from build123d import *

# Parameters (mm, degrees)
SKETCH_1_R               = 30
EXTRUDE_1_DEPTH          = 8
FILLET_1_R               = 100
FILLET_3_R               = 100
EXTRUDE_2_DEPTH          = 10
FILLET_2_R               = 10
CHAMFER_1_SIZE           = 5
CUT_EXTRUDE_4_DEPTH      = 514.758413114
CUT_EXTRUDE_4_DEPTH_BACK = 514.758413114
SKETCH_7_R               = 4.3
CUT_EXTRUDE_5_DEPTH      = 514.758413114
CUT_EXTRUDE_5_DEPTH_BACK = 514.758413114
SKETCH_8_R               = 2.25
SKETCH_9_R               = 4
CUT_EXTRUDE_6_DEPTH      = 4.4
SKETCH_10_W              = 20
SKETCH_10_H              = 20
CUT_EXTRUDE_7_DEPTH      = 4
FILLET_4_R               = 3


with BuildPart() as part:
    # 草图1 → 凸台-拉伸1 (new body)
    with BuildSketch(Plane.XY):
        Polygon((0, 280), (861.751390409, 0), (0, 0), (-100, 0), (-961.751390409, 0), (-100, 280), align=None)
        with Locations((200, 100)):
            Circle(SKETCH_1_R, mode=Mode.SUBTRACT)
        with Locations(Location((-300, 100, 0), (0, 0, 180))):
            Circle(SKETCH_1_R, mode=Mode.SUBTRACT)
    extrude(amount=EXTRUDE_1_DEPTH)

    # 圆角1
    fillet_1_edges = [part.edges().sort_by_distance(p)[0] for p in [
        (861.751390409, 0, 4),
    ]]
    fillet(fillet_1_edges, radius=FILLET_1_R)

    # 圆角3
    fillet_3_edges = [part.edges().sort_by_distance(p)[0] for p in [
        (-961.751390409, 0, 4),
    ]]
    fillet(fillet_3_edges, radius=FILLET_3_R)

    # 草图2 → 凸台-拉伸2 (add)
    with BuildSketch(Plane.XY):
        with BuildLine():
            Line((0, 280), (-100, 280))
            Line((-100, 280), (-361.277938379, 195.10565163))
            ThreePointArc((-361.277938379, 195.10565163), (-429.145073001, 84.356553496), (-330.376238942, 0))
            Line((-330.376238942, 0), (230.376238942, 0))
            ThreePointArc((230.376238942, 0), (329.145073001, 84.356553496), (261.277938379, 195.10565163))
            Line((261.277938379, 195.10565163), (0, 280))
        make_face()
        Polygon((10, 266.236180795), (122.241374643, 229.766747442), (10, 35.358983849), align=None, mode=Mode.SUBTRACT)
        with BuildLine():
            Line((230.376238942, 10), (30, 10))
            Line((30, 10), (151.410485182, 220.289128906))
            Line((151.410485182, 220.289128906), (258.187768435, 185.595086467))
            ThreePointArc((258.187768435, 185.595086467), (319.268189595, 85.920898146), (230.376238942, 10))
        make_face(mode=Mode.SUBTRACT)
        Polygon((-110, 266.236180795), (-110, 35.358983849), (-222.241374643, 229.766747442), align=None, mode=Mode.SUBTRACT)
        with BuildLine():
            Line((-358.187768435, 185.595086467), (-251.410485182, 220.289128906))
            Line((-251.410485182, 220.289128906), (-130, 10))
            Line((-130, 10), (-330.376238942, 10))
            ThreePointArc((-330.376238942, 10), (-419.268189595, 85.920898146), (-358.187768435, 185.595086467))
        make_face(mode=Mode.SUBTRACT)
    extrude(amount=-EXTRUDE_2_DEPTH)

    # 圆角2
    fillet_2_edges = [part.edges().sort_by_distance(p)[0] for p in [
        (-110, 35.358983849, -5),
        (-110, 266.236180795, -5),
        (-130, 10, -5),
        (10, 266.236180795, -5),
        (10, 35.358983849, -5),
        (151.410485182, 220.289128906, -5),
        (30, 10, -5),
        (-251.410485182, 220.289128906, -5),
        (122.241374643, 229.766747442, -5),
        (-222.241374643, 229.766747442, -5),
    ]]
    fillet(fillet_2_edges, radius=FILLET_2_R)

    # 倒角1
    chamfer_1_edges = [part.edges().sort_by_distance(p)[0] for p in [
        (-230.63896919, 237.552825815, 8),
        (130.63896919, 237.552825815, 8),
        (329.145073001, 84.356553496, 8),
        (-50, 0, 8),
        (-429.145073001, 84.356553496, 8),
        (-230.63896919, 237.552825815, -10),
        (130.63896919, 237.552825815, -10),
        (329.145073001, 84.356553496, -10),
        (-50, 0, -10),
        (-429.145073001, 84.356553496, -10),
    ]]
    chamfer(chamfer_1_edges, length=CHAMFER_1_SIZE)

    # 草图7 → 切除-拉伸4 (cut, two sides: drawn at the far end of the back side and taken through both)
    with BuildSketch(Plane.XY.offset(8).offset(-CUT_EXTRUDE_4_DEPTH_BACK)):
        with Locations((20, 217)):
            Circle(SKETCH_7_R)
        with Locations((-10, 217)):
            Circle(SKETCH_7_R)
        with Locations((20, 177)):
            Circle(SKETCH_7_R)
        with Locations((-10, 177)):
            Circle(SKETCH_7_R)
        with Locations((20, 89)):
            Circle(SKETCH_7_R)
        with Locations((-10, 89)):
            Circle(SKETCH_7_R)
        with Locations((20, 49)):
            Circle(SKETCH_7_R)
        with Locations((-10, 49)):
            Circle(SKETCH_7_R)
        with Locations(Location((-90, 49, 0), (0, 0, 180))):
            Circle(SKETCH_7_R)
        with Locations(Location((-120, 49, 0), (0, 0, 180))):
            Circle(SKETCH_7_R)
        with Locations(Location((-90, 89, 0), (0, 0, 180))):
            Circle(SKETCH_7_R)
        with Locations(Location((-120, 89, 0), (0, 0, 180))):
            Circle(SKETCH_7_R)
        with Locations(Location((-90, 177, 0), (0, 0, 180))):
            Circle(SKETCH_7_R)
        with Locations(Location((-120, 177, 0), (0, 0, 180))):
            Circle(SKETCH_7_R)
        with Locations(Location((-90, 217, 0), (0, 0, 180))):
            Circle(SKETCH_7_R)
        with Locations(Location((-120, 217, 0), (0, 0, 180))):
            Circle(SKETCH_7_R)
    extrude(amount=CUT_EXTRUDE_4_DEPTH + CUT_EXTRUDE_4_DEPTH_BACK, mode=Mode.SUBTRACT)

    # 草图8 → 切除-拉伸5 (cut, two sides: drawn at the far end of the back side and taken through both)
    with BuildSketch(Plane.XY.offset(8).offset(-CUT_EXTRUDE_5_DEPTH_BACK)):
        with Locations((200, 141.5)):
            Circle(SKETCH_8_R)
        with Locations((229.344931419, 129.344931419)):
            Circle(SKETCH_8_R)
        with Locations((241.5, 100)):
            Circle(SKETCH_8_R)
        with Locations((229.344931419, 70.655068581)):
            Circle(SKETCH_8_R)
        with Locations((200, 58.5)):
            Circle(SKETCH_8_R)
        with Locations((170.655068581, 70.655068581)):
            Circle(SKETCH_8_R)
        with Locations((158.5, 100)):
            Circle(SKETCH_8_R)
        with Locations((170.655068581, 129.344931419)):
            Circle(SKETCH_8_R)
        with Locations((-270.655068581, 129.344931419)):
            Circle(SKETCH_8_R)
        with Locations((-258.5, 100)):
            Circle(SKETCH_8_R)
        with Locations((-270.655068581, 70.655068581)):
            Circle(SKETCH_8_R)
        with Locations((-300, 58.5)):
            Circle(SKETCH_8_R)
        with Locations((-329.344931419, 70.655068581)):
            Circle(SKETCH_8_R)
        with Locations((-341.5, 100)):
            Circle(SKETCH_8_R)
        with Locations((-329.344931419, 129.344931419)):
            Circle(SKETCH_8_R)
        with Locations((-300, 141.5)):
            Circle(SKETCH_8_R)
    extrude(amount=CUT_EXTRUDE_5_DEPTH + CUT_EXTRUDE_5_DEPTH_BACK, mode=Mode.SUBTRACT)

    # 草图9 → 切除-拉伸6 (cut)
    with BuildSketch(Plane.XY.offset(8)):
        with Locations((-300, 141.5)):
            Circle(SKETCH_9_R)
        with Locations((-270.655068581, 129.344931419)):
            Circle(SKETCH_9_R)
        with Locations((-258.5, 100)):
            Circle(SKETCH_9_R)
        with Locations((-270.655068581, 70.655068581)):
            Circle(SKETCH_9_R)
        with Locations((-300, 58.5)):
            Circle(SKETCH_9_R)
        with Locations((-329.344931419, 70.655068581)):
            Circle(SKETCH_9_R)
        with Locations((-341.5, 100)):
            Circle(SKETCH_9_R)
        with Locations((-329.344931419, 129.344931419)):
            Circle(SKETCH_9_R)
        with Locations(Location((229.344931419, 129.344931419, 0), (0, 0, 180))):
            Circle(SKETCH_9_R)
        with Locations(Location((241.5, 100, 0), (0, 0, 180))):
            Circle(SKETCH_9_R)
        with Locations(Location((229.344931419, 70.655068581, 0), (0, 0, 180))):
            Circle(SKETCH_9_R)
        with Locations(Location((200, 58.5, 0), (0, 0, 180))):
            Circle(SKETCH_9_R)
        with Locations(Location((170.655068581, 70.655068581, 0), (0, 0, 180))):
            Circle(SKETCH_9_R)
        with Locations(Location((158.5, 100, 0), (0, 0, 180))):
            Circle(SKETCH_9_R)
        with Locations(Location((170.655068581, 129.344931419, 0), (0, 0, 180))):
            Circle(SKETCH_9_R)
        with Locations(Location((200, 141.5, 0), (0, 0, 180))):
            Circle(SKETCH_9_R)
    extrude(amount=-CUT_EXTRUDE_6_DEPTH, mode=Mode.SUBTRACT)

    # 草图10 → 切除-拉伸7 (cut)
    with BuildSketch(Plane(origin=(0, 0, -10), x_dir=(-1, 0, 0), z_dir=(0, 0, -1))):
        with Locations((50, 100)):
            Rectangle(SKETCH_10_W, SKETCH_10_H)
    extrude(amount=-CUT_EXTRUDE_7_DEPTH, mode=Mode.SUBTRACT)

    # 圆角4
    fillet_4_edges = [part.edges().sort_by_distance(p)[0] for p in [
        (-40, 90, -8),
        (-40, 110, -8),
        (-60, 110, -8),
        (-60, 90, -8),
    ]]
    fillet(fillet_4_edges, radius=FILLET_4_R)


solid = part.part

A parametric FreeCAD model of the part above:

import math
import FreeCAD as App
import Part
import Sketcher
from FreeCAD import Vector
Q = App.Units.Quantity


def edges_at(feature, points):
    """Names of the edges that pass closest to the given points."""
    edges = feature.Shape.Edges
    near = lambda p: min(range(len(edges)), key=lambda i: edges[i].distToShape(Part.Vertex(*p))[0])
    return sorted({f"Edge{near(p) + 1}" for p in points})


def add_polygon(sketch, points):
    """Adds a closed chain of lines whose ends are joined by coincident constraints."""
    first, n = sketch.GeometryCount, len(points)
    for a, b in zip(points, points[1:] + points[:1]):
        sketch.addGeometry(Part.LineSegment(App.Vector(*a, 0), App.Vector(*b, 0)), False)
    for i in range(n):
        sketch.addConstraint(Sketcher.Constraint("Coincident", first + i, 2, first + (i + 1) % n, 1))

doc = App.newDocument("Part")
body = doc.addObject("PartDesign::Body", "Body")

# Sketch on XY plane
sketch1 = doc.addObject("Sketcher::SketchObject", "Sketch")
body.addObject(sketch1)
sketch1.AttachmentSupport = (doc.XY_Plane, [""])
sketch1.MapMode = "FlatFace"
add_polygon(sketch1, [(862, 0), (0, 280), (-100, 280), (-962, 0)])  # lines 0-3
sketch1.addGeometry(Part.Circle(Vector(200, 100, 0), Vector(0, 0, 1), 30), False)  # 4
sketch1.addGeometry(Part.Circle(Vector(-300, 100, 0), Vector(0, 0, 1), 30), False)  # 5
sketch1.addConstraint(Sketcher.Constraint("Horizontal", 1))
sketch1.addConstraint(Sketcher.Constraint("Horizontal", 3))
sketch1.addConstraint(Sketcher.Constraint("Equal", 4, 5))
sketch1.addConstraint(Sketcher.Constraint("PointOnObject", 0, 2, -2))
sketch1.addConstraint(Sketcher.Constraint("PointOnObject", 2, 2, -1))
sketch1.addConstraint(Sketcher.Constraint("Horizontal", 4, 3, 5, 3))
sketch1.addConstraint(Sketcher.Constraint("Equal", 0, 2))
sketch1.addConstraint(Sketcher.Constraint("Diameter", 4, Q("60 mm")))
sketch1.addConstraint(Sketcher.Constraint("DistanceX", 1, 2, 1, 1, Q("100 mm")))
sketch1.addConstraint(Sketcher.Constraint("Angle", 0, Q("162 deg")))
sketch1.addConstraint(Sketcher.Constraint("DistanceX", -1, 1, 4, 3, Q("200 mm")))
sketch1.addConstraint(Sketcher.Constraint("DistanceY", -1, 1, 4, 3, Q("100 mm")))
sketch1.addConstraint(Sketcher.Constraint("DistanceX", 5, 3, -1, 1, Q("300 mm")))
sketch1.addConstraint(Sketcher.Constraint("DistanceY", -1, 1, 0, 2, Q("280 mm")))
pad1 = doc.addObject("PartDesign::Pad", "Pad")
body.addObject(pad1)
pad1.Profile = sketch1
pad1.Length = 8
doc.recompute()

fillet = doc.addObject("PartDesign::Fillet", "Fillet")
body.addObject(fillet)
fillet.Base = (pad1, edges_at(pad1, [(861.751, 0, 4)]))
fillet.Radius = 100
doc.recompute()

fillet2 = doc.addObject("PartDesign::Fillet", "Fillet001")
body.addObject(fillet2)
fillet2.Base = (fillet, edges_at(fillet, [(-961.751, 0, 4)]))
fillet2.Radius = 100

# Sketch on XY plane
sketch2 = doc.addObject("Sketcher::SketchObject", "Sketch001")
body.addObject(sketch2)
sketch2.AttachmentSupport = (doc.XY_Plane, [""])
sketch2.MapMode = "FlatFace"
sketch2.addGeometry(Part.LineSegment(Vector(0, 280, 0), Vector(-100, 280, 0)), False)  # 0
sketch2.addGeometry(Part.LineSegment(Vector(-100, 280, 0), Vector(-361, 195, 0)), False)  # 1
sketch2.addGeometry(Part.ArcOfCircle(Part.Circle(Vector(-330, 100, 0), Vector(0, 0, 1), 100), math.radians(108), math.radians(270)), False)  # 2
sketch2.addGeometry(Part.LineSegment(Vector(-330, 0, 0), Vector(230, 0, 0)), False)  # 3
sketch2.addGeometry(Part.ArcOfCircle(Part.Circle(Vector(230, 100, 0), Vector(0, 0, 1), 100), math.radians(-90), math.radians(72)), False)  # 4
sketch2.addGeometry(Part.LineSegment(Vector(261, 195, 0), Vector(0, 280, 0)), False)  # 5
sketch2.addGeometry(Part.ArcOfCircle(Part.Circle(Vector(-330, 100, 0), Vector(0, 0, 1), 90), math.radians(108), math.radians(270)), False)  # 6
sketch2.addGeometry(Part.LineSegment(Vector(-358, 186, 0), Vector(-251, 220, 0)), False)  # 7
sketch2.addGeometry(Part.LineSegment(Vector(-251, 220, 0), Vector(-130, 10, 0)), False)  # 8
sketch2.addGeometry(Part.LineSegment(Vector(-130, 10, 0), Vector(-330, 10, 0)), False)  # 9
sketch2.addGeometry(Part.ArcOfCircle(Part.Circle(Vector(230, 100, 0), Vector(0, 0, 1), 90), math.radians(-90), math.radians(72)), False)  # 10
sketch2.addGeometry(Part.LineSegment(Vector(230, 10, 0), Vector(30, 10, 0)), False)  # 11
sketch2.addGeometry(Part.LineSegment(Vector(30, 10, 0), Vector(151, 220, 0)), False)  # 12
sketch2.addGeometry(Part.LineSegment(Vector(151, 220, 0), Vector(258, 186, 0)), False)  # 13
add_polygon(sketch2, [(-222, 230), (-110, 266), (-110, 35)])  # lines 14-16
add_polygon(sketch2, [(10, 35), (10, 266), (122, 230)])  # lines 17-19
sketch2.addConstraint(Sketcher.Constraint("Coincident", 0, 2, 1, 1))
sketch2.addConstraint(Sketcher.Constraint("Tangent", 1, 2, 2, 1))
sketch2.addConstraint(Sketcher.Constraint("Tangent", 2, 2, 3, 1))
sketch2.addConstraint(Sketcher.Constraint("Tangent", 3, 2, 4, 1))
sketch2.addConstraint(Sketcher.Constraint("Tangent", 4, 2, 5, 1))
sketch2.addConstraint(Sketcher.Constraint("Coincident", 5, 2, 0, 1))
sketch2.addConstraint(Sketcher.Constraint("Tangent", 6, 1, 7, 1))
sketch2.addConstraint(Sketcher.Constraint("Coincident", 7, 2, 8, 1))
sketch2.addConstraint(Sketcher.Constraint("Coincident", 8, 2, 9, 1))
sketch2.addConstraint(Sketcher.Constraint("Tangent", 9, 2, 6, 2))
sketch2.addConstraint(Sketcher.Constraint("Tangent", 10, 1, 11, 1))
sketch2.addConstraint(Sketcher.Constraint("Coincident", 11, 2, 12, 1))
sketch2.addConstraint(Sketcher.Constraint("Coincident", 12, 2, 13, 1))
sketch2.addConstraint(Sketcher.Constraint("Tangent", 13, 2, 10, 2))
sketch2.addConstraint(Sketcher.Constraint("Horizontal", 0))
sketch2.addConstraint(Sketcher.Constraint("Horizontal", 3))
sketch2.addConstraint(Sketcher.Constraint("Horizontal", 9))
sketch2.addConstraint(Sketcher.Constraint("Horizontal", 11))
sketch2.addConstraint(Sketcher.Constraint("Vertical", 15))
sketch2.addConstraint(Sketcher.Constraint("Vertical", 17))
sketch2.addConstraint(Sketcher.Constraint("Coincident", 6, 3, 2, 3))
sketch2.addConstraint(Sketcher.Constraint("Coincident", 10, 3, 4, 3))
sketch2.addConstraint(Sketcher.Constraint("Equal", 2, 4))
sketch2.addConstraint(Sketcher.Constraint("Equal", 6, 10))
sketch2.addConstraint(Sketcher.Constraint("PointOnObject", 2, 2, -1))
sketch2.addConstraint(Sketcher.Constraint("PointOnObject", 5, 2, -2))
sketch2.addConstraint(Sketcher.Constraint("Parallel", 1, 7))
sketch2.addConstraint(Sketcher.Constraint("Parallel", 5, 13))
sketch2.addConstraint(Sketcher.Constraint("Parallel", 7, 14))
sketch2.addConstraint(Sketcher.Constraint("Parallel", 8, 16))
sketch2.addConstraint(Sketcher.Constraint("Parallel", 13, 18))
sketch2.addConstraint(Sketcher.Constraint("Parallel", 12, 19))
sketch2.addConstraint(Sketcher.Constraint("Horizontal", 7, 2, 12, 2))
sketch2.addConstraint(Sketcher.Constraint("Horizontal", 14, 2, 17, 2))
sketch2.addConstraint(Sketcher.Constraint("Horizontal", 16, 2, 18, 2))
sketch2.addConstraint(Sketcher.Constraint("Horizontal", 15, 2, 19, 2))
sketch2.addConstraint(Sketcher.Constraint("Equal", 9, 11))
sketch2.addConstraint(Sketcher.Constraint("Radius", 2, Q("100 mm")))
sketch2.addConstraint(Sketcher.Constraint("Radius", 6, Q("90 mm")))
sketch2.addConstraint(Sketcher.Constraint("DistanceX", 0, 2, 0, 1, Q("100 mm")))
sketch2.addConstraint(Sketcher.Constraint("Angle", 1, Q("-162 deg")))
sketch2.addConstraint(Sketcher.Constraint("Angle", 8, Q("-60 deg")))
sketch2.addConstraint(Sketcher.Constraint("DistanceY", -1, 1, 0, 2, Q("280 mm")))
sketch2.addConstraint(Sketcher.Constraint("DistanceX", 8, 2, -1, 1, Q("130 mm")))
sketch2.addConstraint(Sketcher.Constraint("DistanceX", 14, 2, -1, 1, Q("110 mm")))
sketch2.addConstraint(Sketcher.Constraint("DistanceX", -1, 1, 17, 2, Q("10 mm")))
sketch2.addConstraint(Sketcher.Constraint("Distance", 16, Q("224.482749 mm")))
sketch2.addConstraint(Sketcher.Constraint("DistanceY", -1, 1, 14, 2, Q("266.236181 mm")))
pad2 = doc.addObject("PartDesign::Pad", "Pad001")
body.addObject(pad2)
pad2.Profile = sketch2
pad2.Length = 10
pad2.Reversed = True
doc.recompute()

fillet3 = doc.addObject("PartDesign::Fillet", "Fillet002")
body.addObject(fillet3)
fillet3.Base = (pad2, edges_at(pad2, [
    (-110, 35.359, -5),
    (-110, 266.236, -5),
    (-130, 10, -5),
    (10, 266.236, -5),
    (10, 35.359, -5),
    (151.41, 220.289, -5),
    (30, 10, -5),
    (-251.41, 220.289, -5),
    (122.241, 229.767, -5),
    (-222.241, 229.767, -5),
]))
fillet3.Radius = 10
doc.recompute()

chamfer = doc.addObject("PartDesign::Chamfer", "Chamfer")
body.addObject(chamfer)
chamfer.Base = (fillet3, edges_at(fillet3, [
    (-230.639, 237.553, 8),
    (130.639, 237.553, 8),
    (329.145, 84.357, 8),
    (-50, 0, 8),
    (-429.145, 84.357, 8),
    (-230.639, 237.553, -10),
    (130.639, 237.553, -10),
    (329.145, 84.357, -10),
    (-50, 0, -10),
    (-429.145, 84.357, -10),
]))
chamfer.Size = 5

# Sketch on XY plane
sketch3 = doc.addObject("Sketcher::SketchObject", "Sketch002")
body.addObject(sketch3)
sketch3.AttachmentSupport = (doc.XY_Plane, [""])
sketch3.MapMode = "FlatFace"
sketch3.AttachmentOffset = App.Placement(Vector(0, 0, 8), App.Rotation())
sketch3.addGeometry(Part.Circle(Vector(20, 217, 0), Vector(0, 0, 1), 4.3), False)
sketch3.addGeometry(Part.Circle(Vector(-10, 217, 0), Vector(0, 0, 1), 4.3), False)
sketch3.addGeometry(Part.Circle(Vector(20, 177, 0), Vector(0, 0, 1), 4.3), False)
sketch3.addGeometry(Part.Circle(Vector(-10, 177, 0), Vector(0, 0, 1), 4.3), False)
sketch3.addGeometry(Part.Circle(Vector(20, 89, 0), Vector(0, 0, 1), 4.3), False)
sketch3.addGeometry(Part.Circle(Vector(-10, 89, 0), Vector(0, 0, 1), 4.3), False)
sketch3.addGeometry(Part.Circle(Vector(20, 49, 0), Vector(0, 0, 1), 4.3), False)
sketch3.addGeometry(Part.Circle(Vector(-10, 49, 0), Vector(0, 0, 1), 4.3), False)
sketch3.addGeometry(Part.Circle(Vector(-90, 49, 0), Vector(0, 0, 1), 4.3), False)
sketch3.addGeometry(Part.Circle(Vector(-120, 49, 0), Vector(0, 0, 1), 4.3), False)
sketch3.addGeometry(Part.Circle(Vector(-90, 89, 0), Vector(0, 0, 1), 4.3), False)
sketch3.addGeometry(Part.Circle(Vector(-120, 89, 0), Vector(0, 0, 1), 4.3), False)
sketch3.addGeometry(Part.Circle(Vector(-90, 177, 0), Vector(0, 0, 1), 4.3), False)
sketch3.addGeometry(Part.Circle(Vector(-120, 177, 0), Vector(0, 0, 1), 4.3), False)
sketch3.addGeometry(Part.Circle(Vector(-90, 217, 0), Vector(0, 0, 1), 4.3), False)
sketch3.addGeometry(Part.Circle(Vector(-120, 217, 0), Vector(0, 0, 1), 4.3), False)
sketch3.addConstraint(Sketcher.Constraint("Equal", 0, 1))
sketch3.addConstraint(Sketcher.Constraint("Equal", 1, 2))
sketch3.addConstraint(Sketcher.Constraint("Equal", 2, 3))
sketch3.addConstraint(Sketcher.Constraint("Equal", 3, 4))
sketch3.addConstraint(Sketcher.Constraint("Equal", 4, 5))
sketch3.addConstraint(Sketcher.Constraint("Equal", 5, 6))
sketch3.addConstraint(Sketcher.Constraint("Equal", 6, 7))
sketch3.addConstraint(Sketcher.Constraint("Equal", 7, 8))
sketch3.addConstraint(Sketcher.Constraint("Equal", 8, 9))
sketch3.addConstraint(Sketcher.Constraint("Equal", 9, 10))
sketch3.addConstraint(Sketcher.Constraint("Equal", 10, 11))
sketch3.addConstraint(Sketcher.Constraint("Equal", 11, 12))
sketch3.addConstraint(Sketcher.Constraint("Equal", 12, 13))
sketch3.addConstraint(Sketcher.Constraint("Equal", 13, 14))
sketch3.addConstraint(Sketcher.Constraint("Equal", 14, 15))
sketch3.addConstraint(Sketcher.Constraint("Horizontal", 0, 3, 1, 3))
sketch3.addConstraint(Sketcher.Constraint("Horizontal", 2, 3, 3, 3))
sketch3.addConstraint(Sketcher.Constraint("Horizontal", 4, 3, 5, 3))
sketch3.addConstraint(Sketcher.Constraint("Horizontal", 6, 3, 7, 3))
sketch3.addConstraint(Sketcher.Constraint("Horizontal", 7, 3, 8, 3))
sketch3.addConstraint(Sketcher.Constraint("Horizontal", 8, 3, 9, 3))
sketch3.addConstraint(Sketcher.Constraint("Horizontal", 5, 3, 10, 3))
sketch3.addConstraint(Sketcher.Constraint("Horizontal", 10, 3, 11, 3))
sketch3.addConstraint(Sketcher.Constraint("Horizontal", 3, 3, 12, 3))
sketch3.addConstraint(Sketcher.Constraint("Horizontal", 12, 3, 13, 3))
sketch3.addConstraint(Sketcher.Constraint("Horizontal", 1, 3, 14, 3))
sketch3.addConstraint(Sketcher.Constraint("Horizontal", 14, 3, 15, 3))
sketch3.addConstraint(Sketcher.Constraint("Vertical", 0, 3, 2, 3))
sketch3.addConstraint(Sketcher.Constraint("Vertical", 1, 3, 3, 3))
sketch3.addConstraint(Sketcher.Constraint("Vertical", 2, 3, 4, 3))
sketch3.addConstraint(Sketcher.Constraint("Vertical", 3, 3, 5, 3))
sketch3.addConstraint(Sketcher.Constraint("Vertical", 4, 3, 6, 3))
sketch3.addConstraint(Sketcher.Constraint("Vertical", 5, 3, 7, 3))
sketch3.addConstraint(Sketcher.Constraint("Vertical", 8, 3, 10, 3))
sketch3.addConstraint(Sketcher.Constraint("Vertical", 9, 3, 11, 3))
sketch3.addConstraint(Sketcher.Constraint("Vertical", 10, 3, 12, 3))
sketch3.addConstraint(Sketcher.Constraint("Vertical", 11, 3, 13, 3))
sketch3.addConstraint(Sketcher.Constraint("Vertical", 12, 3, 14, 3))
sketch3.addConstraint(Sketcher.Constraint("Vertical", 13, 3, 15, 3))
sketch3.addConstraint(Sketcher.Constraint("Diameter", 0, Q("8.6 mm")))
sketch3.addConstraint(Sketcher.Constraint("DistanceX", -1, 1, 0, 3, Q("20 mm")))
sketch3.addConstraint(Sketcher.Constraint("DistanceY", -1, 1, 0, 3, Q("217 mm")))
sketch3.addConstraint(Sketcher.Constraint("DistanceX", 1, 3, -1, 1, Q("10 mm")))
sketch3.addConstraint(Sketcher.Constraint("DistanceY", -1, 1, 2, 3, Q("177 mm")))
sketch3.addConstraint(Sketcher.Constraint("DistanceY", -1, 1, 4, 3, Q("89 mm")))
sketch3.addConstraint(Sketcher.Constraint("DistanceY", -1, 1, 6, 3, Q("49 mm")))
sketch3.addConstraint(Sketcher.Constraint("DistanceX", 8, 3, -1, 1, Q("90 mm")))
sketch3.addConstraint(Sketcher.Constraint("DistanceX", 9, 3, -1, 1, Q("120 mm")))
pocket1 = doc.addObject("PartDesign::Pocket", "Pocket")
body.addObject(pocket1)
pocket1.Profile = sketch3
pocket1.Type = "ThroughAll"
pocket1.Midplane = True

# Sketch on XY plane
sketch4 = doc.addObject("Sketcher::SketchObject", "Sketch003")
body.addObject(sketch4)
sketch4.AttachmentSupport = (doc.XY_Plane, [""])
sketch4.MapMode = "FlatFace"
sketch4.AttachmentOffset = App.Placement(Vector(0, 0, 8), App.Rotation())
sketch4.addGeometry(Part.Circle(Vector(200, 141.5, 0), Vector(0, 0, 1), 2.2), False)
sketch4.addGeometry(Part.Circle(Vector(229.3, 129.3, 0), Vector(0, 0, 1), 2.2), False)
sketch4.addGeometry(Part.Circle(Vector(241.5, 100, 0), Vector(0, 0, 1), 2.2), False)
sketch4.addGeometry(Part.Circle(Vector(229.3, 70.7, 0), Vector(0, 0, 1), 2.2), False)
sketch4.addGeometry(Part.Circle(Vector(200, 58.5, 0), Vector(0, 0, 1), 2.2), False)
sketch4.addGeometry(Part.Circle(Vector(170.7, 70.7, 0), Vector(0, 0, 1), 2.2), False)
sketch4.addGeometry(Part.Circle(Vector(158.5, 100, 0), Vector(0, 0, 1), 2.2), False)
sketch4.addGeometry(Part.Circle(Vector(170.7, 129.3, 0), Vector(0, 0, 1), 2.2), False)
sketch4.addGeometry(Part.Circle(Vector(-270.7, 129.3, 0), Vector(0, 0, 1), 2.2), False)
sketch4.addGeometry(Part.Circle(Vector(-258.5, 100, 0), Vector(0, 0, 1), 2.2), False)
sketch4.addGeometry(Part.Circle(Vector(-270.7, 70.7, 0), Vector(0, 0, 1), 2.2), False)
sketch4.addGeometry(Part.Circle(Vector(-300, 58.5, 0), Vector(0, 0, 1), 2.2), False)
sketch4.addGeometry(Part.Circle(Vector(-329.3, 70.7, 0), Vector(0, 0, 1), 2.2), False)
sketch4.addGeometry(Part.Circle(Vector(-341.5, 100, 0), Vector(0, 0, 1), 2.2), False)
sketch4.addGeometry(Part.Circle(Vector(-329.3, 129.3, 0), Vector(0, 0, 1), 2.2), False)
sketch4.addGeometry(Part.Circle(Vector(-300, 141.5, 0), Vector(0, 0, 1), 2.2), False)
sketch4.addConstraint(Sketcher.Constraint("Equal", 0, 1))
sketch4.addConstraint(Sketcher.Constraint("Equal", 1, 2))
sketch4.addConstraint(Sketcher.Constraint("Equal", 2, 3))
sketch4.addConstraint(Sketcher.Constraint("Equal", 3, 4))
sketch4.addConstraint(Sketcher.Constraint("Equal", 4, 5))
sketch4.addConstraint(Sketcher.Constraint("Equal", 5, 6))
sketch4.addConstraint(Sketcher.Constraint("Equal", 6, 7))
sketch4.addConstraint(Sketcher.Constraint("Equal", 7, 8))
sketch4.addConstraint(Sketcher.Constraint("Equal", 8, 9))
sketch4.addConstraint(Sketcher.Constraint("Equal", 9, 10))
sketch4.addConstraint(Sketcher.Constraint("Equal", 10, 11))
sketch4.addConstraint(Sketcher.Constraint("Equal", 11, 12))
sketch4.addConstraint(Sketcher.Constraint("Equal", 12, 13))
sketch4.addConstraint(Sketcher.Constraint("Equal", 13, 14))
sketch4.addConstraint(Sketcher.Constraint("Equal", 14, 15))
sketch4.addConstraint(Sketcher.Constraint("Horizontal", 3, 3, 5, 3))
sketch4.addConstraint(Sketcher.Constraint("Horizontal", 2, 3, 6, 3))
sketch4.addConstraint(Sketcher.Constraint("Horizontal", 1, 3, 7, 3))
sketch4.addConstraint(Sketcher.Constraint("Horizontal", 7, 3, 8, 3))
sketch4.addConstraint(Sketcher.Constraint("Horizontal", 6, 3, 9, 3))
sketch4.addConstraint(Sketcher.Constraint("Horizontal", 5, 3, 10, 3))
sketch4.addConstraint(Sketcher.Constraint("Horizontal", 4, 3, 11, 3))
sketch4.addConstraint(Sketcher.Constraint("Horizontal", 10, 3, 12, 3))
sketch4.addConstraint(Sketcher.Constraint("Horizontal", 9, 3, 13, 3))
sketch4.addConstraint(Sketcher.Constraint("Horizontal", 8, 3, 14, 3))
sketch4.addConstraint(Sketcher.Constraint("Horizontal", 0, 3, 15, 3))
sketch4.addConstraint(Sketcher.Constraint("Vertical", 1, 3, 3, 3))
sketch4.addConstraint(Sketcher.Constraint("Vertical", 0, 3, 4, 3))
sketch4.addConstraint(Sketcher.Constraint("Vertical", 5, 3, 7, 3))
sketch4.addConstraint(Sketcher.Constraint("Vertical", 8, 3, 10, 3))
sketch4.addConstraint(Sketcher.Constraint("Vertical", 12, 3, 14, 3))
sketch4.addConstraint(Sketcher.Constraint("Vertical", 11, 3, 15, 3))
sketch4.addConstraint(Sketcher.Constraint("Diameter", 0, Q("4.5 mm")))
sketch4.addConstraint(Sketcher.Constraint("DistanceX", -1, 1, 0, 3, Q("200 mm")))
sketch4.addConstraint(Sketcher.Constraint("DistanceY", -1, 1, 2, 3, Q("100 mm")))
sketch4.addConstraint(Sketcher.Constraint("DistanceX", 11, 3, -1, 1, Q("300 mm")))
sketch4.addConstraint(Sketcher.Constraint("DistanceY", 4, 3, 0, 3, Q("83 mm")))
sketch4.addConstraint(Sketcher.Constraint("DistanceX", 9, 3, 6, 3, Q("417 mm")))
sketch4.addConstraint(Sketcher.Constraint("DistanceX", 13, 3, 9, 3, Q("83 mm")))
sketch4.addConstraint(Sketcher.Constraint("DistanceY", -1, 1, 0, 3, Q("141.5 mm")))
sketch4.addConstraint(Sketcher.Constraint("DistanceX", -1, 1, 2, 3, Q("241.5 mm")))
sketch4.addConstraint(Sketcher.Constraint("DistanceX", -1, 1, 6, 3, Q("158.5 mm")))
sketch4.addConstraint(Sketcher.Constraint("DistanceX", -1, 1, 1, 3, Q("229.344931 mm")))
sketch4.addConstraint(Sketcher.Constraint("DistanceY", -1, 1, 1, 3, Q("129.344931 mm")))
sketch4.addConstraint(Sketcher.Constraint("DistanceY", -1, 1, 3, 3, Q("70.655069 mm")))
sketch4.addConstraint(Sketcher.Constraint("DistanceX", -1, 1, 5, 3, Q("170.655069 mm")))
sketch4.addConstraint(Sketcher.Constraint("DistanceX", 8, 3, -1, 1, Q("270.655069 mm")))
sketch4.addConstraint(Sketcher.Constraint("DistanceX", 12, 3, -1, 1, Q("329.344931 mm")))
pocket2 = doc.addObject("PartDesign::Pocket", "Pocket001")
body.addObject(pocket2)
pocket2.Profile = sketch4
pocket2.Type = "ThroughAll"
pocket2.Midplane = True

# Sketch on XY plane
sketch5 = doc.addObject("Sketcher::SketchObject", "Sketch004")
body.addObject(sketch5)
sketch5.AttachmentSupport = (doc.XY_Plane, [""])
sketch5.MapMode = "FlatFace"
sketch5.AttachmentOffset = App.Placement(Vector(0, 0, 8), App.Rotation())
sketch5.addGeometry(Part.Circle(Vector(-300, 141.5, 0), Vector(0, 0, 1), 4), False)
sketch5.addGeometry(Part.Circle(Vector(-270.7, 129.3, 0), Vector(0, 0, 1), 4), False)
sketch5.addGeometry(Part.Circle(Vector(-258.5, 100, 0), Vector(0, 0, 1), 4), False)
sketch5.addGeometry(Part.Circle(Vector(-270.7, 70.7, 0), Vector(0, 0, 1), 4), False)
sketch5.addGeometry(Part.Circle(Vector(-300, 58.5, 0), Vector(0, 0, 1), 4), False)
sketch5.addGeometry(Part.Circle(Vector(-329.3, 70.7, 0), Vector(0, 0, 1), 4), False)
sketch5.addGeometry(Part.Circle(Vector(-341.5, 100, 0), Vector(0, 0, 1), 4), False)
sketch5.addGeometry(Part.Circle(Vector(-329.3, 129.3, 0), Vector(0, 0, 1), 4), False)
sketch5.addGeometry(Part.Circle(Vector(229.3, 129.3, 0), Vector(0, 0, 1), 4), False)
sketch5.addGeometry(Part.Circle(Vector(241.5, 100, 0), Vector(0, 0, 1), 4), False)
sketch5.addGeometry(Part.Circle(Vector(229.3, 70.7, 0), Vector(0, 0, 1), 4), False)
sketch5.addGeometry(Part.Circle(Vector(200, 58.5, 0), Vector(0, 0, 1), 4), False)
sketch5.addGeometry(Part.Circle(Vector(170.7, 70.7, 0), Vector(0, 0, 1), 4), False)
sketch5.addGeometry(Part.Circle(Vector(158.5, 100, 0), Vector(0, 0, 1), 4), False)
sketch5.addGeometry(Part.Circle(Vector(170.7, 129.3, 0), Vector(0, 0, 1), 4), False)
sketch5.addGeometry(Part.Circle(Vector(200, 141.5, 0), Vector(0, 0, 1), 4), False)
sketch5.addConstraint(Sketcher.Constraint("Equal", 0, 1))
sketch5.addConstraint(Sketcher.Constraint("Equal", 1, 2))
sketch5.addConstraint(Sketcher.Constraint("Equal", 2, 3))
sketch5.addConstraint(Sketcher.Constraint("Equal", 3, 4))
sketch5.addConstraint(Sketcher.Constraint("Equal", 4, 5))
sketch5.addConstraint(Sketcher.Constraint("Equal", 5, 6))
sketch5.addConstraint(Sketcher.Constraint("Equal", 6, 7))
sketch5.addConstraint(Sketcher.Constraint("Equal", 7, 8))
sketch5.addConstraint(Sketcher.Constraint("Equal", 8, 9))
sketch5.addConstraint(Sketcher.Constraint("Equal", 9, 10))
sketch5.addConstraint(Sketcher.Constraint("Equal", 10, 11))
sketch5.addConstraint(Sketcher.Constraint("Equal", 11, 12))
sketch5.addConstraint(Sketcher.Constraint("Equal", 12, 13))
sketch5.addConstraint(Sketcher.Constraint("Equal", 13, 14))
sketch5.addConstraint(Sketcher.Constraint("Equal", 14, 15))
sketch5.addConstraint(Sketcher.Constraint("Horizontal", 3, 3, 5, 3))
sketch5.addConstraint(Sketcher.Constraint("Horizontal", 2, 3, 6, 3))
sketch5.addConstraint(Sketcher.Constraint("Horizontal", 1, 3, 7, 3))
sketch5.addConstraint(Sketcher.Constraint("Horizontal", 7, 3, 8, 3))
sketch5.addConstraint(Sketcher.Constraint("Horizontal", 6, 3, 9, 3))
sketch5.addConstraint(Sketcher.Constraint("Horizontal", 5, 3, 10, 3))
sketch5.addConstraint(Sketcher.Constraint("Horizontal", 4, 3, 11, 3))
sketch5.addConstraint(Sketcher.Constraint("Horizontal", 10, 3, 12, 3))
sketch5.addConstraint(Sketcher.Constraint("Horizontal", 9, 3, 13, 3))
sketch5.addConstraint(Sketcher.Constraint("Horizontal", 8, 3, 14, 3))
sketch5.addConstraint(Sketcher.Constraint("Horizontal", 0, 3, 15, 3))
sketch5.addConstraint(Sketcher.Constraint("Vertical", 1, 3, 3, 3))
sketch5.addConstraint(Sketcher.Constraint("Vertical", 0, 3, 4, 3))
sketch5.addConstraint(Sketcher.Constraint("Vertical", 5, 3, 7, 3))
sketch5.addConstraint(Sketcher.Constraint("Vertical", 8, 3, 10, 3))
sketch5.addConstraint(Sketcher.Constraint("Vertical", 12, 3, 14, 3))
sketch5.addConstraint(Sketcher.Constraint("Vertical", 11, 3, 15, 3))
sketch5.addConstraint(Sketcher.Constraint("Diameter", 0, Q("8 mm")))
sketch5.addConstraint(Sketcher.Constraint("DistanceX", 0, 3, -1, 1, Q("300 mm")))
sketch5.addConstraint(Sketcher.Constraint("DistanceY", -1, 1, 2, 3, Q("100 mm")))
sketch5.addConstraint(Sketcher.Constraint("DistanceX", -1, 1, 11, 3, Q("200 mm")))
sketch5.addConstraint(Sketcher.Constraint("DistanceY", 4, 3, 0, 3, Q("83 mm")))
sketch5.addConstraint(Sketcher.Constraint("DistanceX", 1, 3, 8, 3, Q("500 mm")))
sketch5.addConstraint(Sketcher.Constraint("DistanceX", 2, 3, 9, 3, Q("500 mm")))
sketch5.addConstraint(Sketcher.Constraint("DistanceX", 13, 3, 9, 3, Q("83 mm")))
sketch5.addConstraint(Sketcher.Constraint("DistanceY", -1, 1, 0, 3, Q("141.5 mm")))
sketch5.addConstraint(Sketcher.Constraint("DistanceX", 2, 3, -1, 1, Q("258.5 mm")))
sketch5.addConstraint(Sketcher.Constraint("DistanceX", 6, 3, -1, 1, Q("341.5 mm")))
sketch5.addConstraint(Sketcher.Constraint("DistanceX", 1, 3, -1, 1, Q("270.655069 mm")))
sketch5.addConstraint(Sketcher.Constraint("DistanceY", -1, 1, 1, 3, Q("129.344931 mm")))
sketch5.addConstraint(Sketcher.Constraint("DistanceY", -1, 1, 3, 3, Q("70.655069 mm")))
sketch5.addConstraint(Sketcher.Constraint("DistanceX", 5, 3, -1, 1, Q("329.344931 mm")))
sketch5.addConstraint(Sketcher.Constraint("DistanceX", -1, 1, 12, 3, Q("170.655069 mm")))
pocket3 = doc.addObject("PartDesign::Pocket", "Pocket002")
body.addObject(pocket3)
pocket3.Profile = sketch5
pocket3.Length = 4.4

# Sketch on XY plane
sketch6 = doc.addObject("Sketcher::SketchObject", "Sketch005")
body.addObject(sketch6)
sketch6.AttachmentSupport = (doc.XY_Plane, [""])
sketch6.MapMode = "FlatFace"
sketch6.AttachmentOffset = App.Placement(Vector(0, 0, -10), App.Rotation())
add_polygon(sketch6, [(-40, 110), (-40, 90), (-60, 90), (-60, 110)])  # lines 0-3
sketch6.addConstraint(Sketcher.Constraint("Vertical", 0))
sketch6.addConstraint(Sketcher.Constraint("Horizontal", 1))
sketch6.addConstraint(Sketcher.Constraint("Vertical", 2))
sketch6.addConstraint(Sketcher.Constraint("Horizontal", 3))
sketch6.addConstraint(Sketcher.Constraint("Equal", 3, 0))
sketch6.addConstraint(Sketcher.Constraint("DistanceX", 1, 2, 1, 1, Q("20 mm")))
sketch6.addConstraint(Sketcher.Constraint("DistanceX", 0, 2, -1, 1, Q("40 mm")))
sketch6.addConstraint(Sketcher.Constraint("DistanceY", -1, 1, 0, 2, Q("90 mm")))
pocket4 = doc.addObject("PartDesign::Pocket", "Pocket003")
body.addObject(pocket4)
pocket4.Profile = sketch6
pocket4.Length = 4
pocket4.Reversed = True
doc.recompute()

fillet4 = doc.addObject("PartDesign::Fillet", "Fillet003")
body.addObject(fillet4)
fillet4.Base = (pocket4, edges_at(pocket4, [
    (-40, 90, -8),
    (-40, 110, -8),
    (-60, 110, -8),
    (-60, 90, -8),
]))
fillet4.Radius = 3

doc.recompute()
